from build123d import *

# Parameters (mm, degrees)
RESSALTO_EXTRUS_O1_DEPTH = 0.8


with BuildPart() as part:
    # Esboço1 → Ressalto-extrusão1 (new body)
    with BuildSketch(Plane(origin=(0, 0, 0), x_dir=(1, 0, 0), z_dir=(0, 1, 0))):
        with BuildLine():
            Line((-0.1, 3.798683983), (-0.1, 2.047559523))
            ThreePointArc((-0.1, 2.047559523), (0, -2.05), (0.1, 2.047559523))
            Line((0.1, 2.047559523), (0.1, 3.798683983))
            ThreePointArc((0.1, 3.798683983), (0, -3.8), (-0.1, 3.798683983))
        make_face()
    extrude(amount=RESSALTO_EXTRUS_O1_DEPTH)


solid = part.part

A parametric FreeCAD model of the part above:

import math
import FreeCAD as App
import Part
import Sketcher

V = App.Vector
Q = App.Units.Quantity

doc = App.newDocument("Part")
body = doc.addObject("PartDesign::Body", "Body")

# Sketch on XZ plane
sketch1 = body.newObject("Sketcher::SketchObject", "Sketch")
sketch1.AttachmentSupport = (doc.getObject("XZ_Plane"), [""])
sketch1.MapMode = "FlatFace"
sketch1.addGeometry(Part.LineSegment(V(-0.1, -2.05, 0), V(-0.1, -3.8, 0)), False)
sketch1.addGeometry(Part.ArcOfCircle(Part.Circle(V(0, 0, 0), V(0, 0, 1), 3.8), math.radians(-88), math.radians(268)), False)
sketch1.addGeometry(Part.LineSegment(V(0.1, -3.8, 0), V(0.1, -2.05, 0)), False)
sketch1.addGeometry(Part.ArcOfCircle(Part.Circle(V(0, 0, 0), V(0, 0, 1), 2.05), math.radians(-87), math.radians(267)), False)
sketch1.addConstraint(Sketcher.Constraint("Coincident", 0, 2, 1, 2))
sketch1.addConstraint(Sketcher.Constraint("Coincident", 1, 1, 2, 1))
sketch1.addConstraint(Sketcher.Constraint("Coincident", 2, 2, 3, 1))
sketch1.addConstraint(Sketcher.Constraint("Coincident", 3, 2, 0, 1))
sketch1.addConstraint(Sketcher.Constraint("Vertical", 0))
sketch1.addConstraint(Sketcher.Constraint("Vertical", 2))
sketch1.addConstraint(Sketcher.Constraint("Coincident", 1, 3, -1, 1))
sketch1.addConstraint(Sketcher.Constraint("Coincident", 3, 3, -1, 1))
sketch1.addConstraint(Sketcher.Constraint("Horizontal", 0, 2, 1, 1))
sketch1.addConstraint(Sketcher.Constraint("Radius", 1, Q("3.8 mm")))
sketch1.addConstraint(Sketcher.Constraint("Radius", 3, Q("2.05 mm")))
sketch1.addConstraint(Sketcher.Constraint("DistanceX", 0, 2, -1, 1, Q("0.1 mm")))
pad1 = body.newObject("PartDesign::Pad", "Pad")
pad1.Profile = sketch1
pad1.Length = 0.8
pad1.Reversed = True

doc.recompute()
